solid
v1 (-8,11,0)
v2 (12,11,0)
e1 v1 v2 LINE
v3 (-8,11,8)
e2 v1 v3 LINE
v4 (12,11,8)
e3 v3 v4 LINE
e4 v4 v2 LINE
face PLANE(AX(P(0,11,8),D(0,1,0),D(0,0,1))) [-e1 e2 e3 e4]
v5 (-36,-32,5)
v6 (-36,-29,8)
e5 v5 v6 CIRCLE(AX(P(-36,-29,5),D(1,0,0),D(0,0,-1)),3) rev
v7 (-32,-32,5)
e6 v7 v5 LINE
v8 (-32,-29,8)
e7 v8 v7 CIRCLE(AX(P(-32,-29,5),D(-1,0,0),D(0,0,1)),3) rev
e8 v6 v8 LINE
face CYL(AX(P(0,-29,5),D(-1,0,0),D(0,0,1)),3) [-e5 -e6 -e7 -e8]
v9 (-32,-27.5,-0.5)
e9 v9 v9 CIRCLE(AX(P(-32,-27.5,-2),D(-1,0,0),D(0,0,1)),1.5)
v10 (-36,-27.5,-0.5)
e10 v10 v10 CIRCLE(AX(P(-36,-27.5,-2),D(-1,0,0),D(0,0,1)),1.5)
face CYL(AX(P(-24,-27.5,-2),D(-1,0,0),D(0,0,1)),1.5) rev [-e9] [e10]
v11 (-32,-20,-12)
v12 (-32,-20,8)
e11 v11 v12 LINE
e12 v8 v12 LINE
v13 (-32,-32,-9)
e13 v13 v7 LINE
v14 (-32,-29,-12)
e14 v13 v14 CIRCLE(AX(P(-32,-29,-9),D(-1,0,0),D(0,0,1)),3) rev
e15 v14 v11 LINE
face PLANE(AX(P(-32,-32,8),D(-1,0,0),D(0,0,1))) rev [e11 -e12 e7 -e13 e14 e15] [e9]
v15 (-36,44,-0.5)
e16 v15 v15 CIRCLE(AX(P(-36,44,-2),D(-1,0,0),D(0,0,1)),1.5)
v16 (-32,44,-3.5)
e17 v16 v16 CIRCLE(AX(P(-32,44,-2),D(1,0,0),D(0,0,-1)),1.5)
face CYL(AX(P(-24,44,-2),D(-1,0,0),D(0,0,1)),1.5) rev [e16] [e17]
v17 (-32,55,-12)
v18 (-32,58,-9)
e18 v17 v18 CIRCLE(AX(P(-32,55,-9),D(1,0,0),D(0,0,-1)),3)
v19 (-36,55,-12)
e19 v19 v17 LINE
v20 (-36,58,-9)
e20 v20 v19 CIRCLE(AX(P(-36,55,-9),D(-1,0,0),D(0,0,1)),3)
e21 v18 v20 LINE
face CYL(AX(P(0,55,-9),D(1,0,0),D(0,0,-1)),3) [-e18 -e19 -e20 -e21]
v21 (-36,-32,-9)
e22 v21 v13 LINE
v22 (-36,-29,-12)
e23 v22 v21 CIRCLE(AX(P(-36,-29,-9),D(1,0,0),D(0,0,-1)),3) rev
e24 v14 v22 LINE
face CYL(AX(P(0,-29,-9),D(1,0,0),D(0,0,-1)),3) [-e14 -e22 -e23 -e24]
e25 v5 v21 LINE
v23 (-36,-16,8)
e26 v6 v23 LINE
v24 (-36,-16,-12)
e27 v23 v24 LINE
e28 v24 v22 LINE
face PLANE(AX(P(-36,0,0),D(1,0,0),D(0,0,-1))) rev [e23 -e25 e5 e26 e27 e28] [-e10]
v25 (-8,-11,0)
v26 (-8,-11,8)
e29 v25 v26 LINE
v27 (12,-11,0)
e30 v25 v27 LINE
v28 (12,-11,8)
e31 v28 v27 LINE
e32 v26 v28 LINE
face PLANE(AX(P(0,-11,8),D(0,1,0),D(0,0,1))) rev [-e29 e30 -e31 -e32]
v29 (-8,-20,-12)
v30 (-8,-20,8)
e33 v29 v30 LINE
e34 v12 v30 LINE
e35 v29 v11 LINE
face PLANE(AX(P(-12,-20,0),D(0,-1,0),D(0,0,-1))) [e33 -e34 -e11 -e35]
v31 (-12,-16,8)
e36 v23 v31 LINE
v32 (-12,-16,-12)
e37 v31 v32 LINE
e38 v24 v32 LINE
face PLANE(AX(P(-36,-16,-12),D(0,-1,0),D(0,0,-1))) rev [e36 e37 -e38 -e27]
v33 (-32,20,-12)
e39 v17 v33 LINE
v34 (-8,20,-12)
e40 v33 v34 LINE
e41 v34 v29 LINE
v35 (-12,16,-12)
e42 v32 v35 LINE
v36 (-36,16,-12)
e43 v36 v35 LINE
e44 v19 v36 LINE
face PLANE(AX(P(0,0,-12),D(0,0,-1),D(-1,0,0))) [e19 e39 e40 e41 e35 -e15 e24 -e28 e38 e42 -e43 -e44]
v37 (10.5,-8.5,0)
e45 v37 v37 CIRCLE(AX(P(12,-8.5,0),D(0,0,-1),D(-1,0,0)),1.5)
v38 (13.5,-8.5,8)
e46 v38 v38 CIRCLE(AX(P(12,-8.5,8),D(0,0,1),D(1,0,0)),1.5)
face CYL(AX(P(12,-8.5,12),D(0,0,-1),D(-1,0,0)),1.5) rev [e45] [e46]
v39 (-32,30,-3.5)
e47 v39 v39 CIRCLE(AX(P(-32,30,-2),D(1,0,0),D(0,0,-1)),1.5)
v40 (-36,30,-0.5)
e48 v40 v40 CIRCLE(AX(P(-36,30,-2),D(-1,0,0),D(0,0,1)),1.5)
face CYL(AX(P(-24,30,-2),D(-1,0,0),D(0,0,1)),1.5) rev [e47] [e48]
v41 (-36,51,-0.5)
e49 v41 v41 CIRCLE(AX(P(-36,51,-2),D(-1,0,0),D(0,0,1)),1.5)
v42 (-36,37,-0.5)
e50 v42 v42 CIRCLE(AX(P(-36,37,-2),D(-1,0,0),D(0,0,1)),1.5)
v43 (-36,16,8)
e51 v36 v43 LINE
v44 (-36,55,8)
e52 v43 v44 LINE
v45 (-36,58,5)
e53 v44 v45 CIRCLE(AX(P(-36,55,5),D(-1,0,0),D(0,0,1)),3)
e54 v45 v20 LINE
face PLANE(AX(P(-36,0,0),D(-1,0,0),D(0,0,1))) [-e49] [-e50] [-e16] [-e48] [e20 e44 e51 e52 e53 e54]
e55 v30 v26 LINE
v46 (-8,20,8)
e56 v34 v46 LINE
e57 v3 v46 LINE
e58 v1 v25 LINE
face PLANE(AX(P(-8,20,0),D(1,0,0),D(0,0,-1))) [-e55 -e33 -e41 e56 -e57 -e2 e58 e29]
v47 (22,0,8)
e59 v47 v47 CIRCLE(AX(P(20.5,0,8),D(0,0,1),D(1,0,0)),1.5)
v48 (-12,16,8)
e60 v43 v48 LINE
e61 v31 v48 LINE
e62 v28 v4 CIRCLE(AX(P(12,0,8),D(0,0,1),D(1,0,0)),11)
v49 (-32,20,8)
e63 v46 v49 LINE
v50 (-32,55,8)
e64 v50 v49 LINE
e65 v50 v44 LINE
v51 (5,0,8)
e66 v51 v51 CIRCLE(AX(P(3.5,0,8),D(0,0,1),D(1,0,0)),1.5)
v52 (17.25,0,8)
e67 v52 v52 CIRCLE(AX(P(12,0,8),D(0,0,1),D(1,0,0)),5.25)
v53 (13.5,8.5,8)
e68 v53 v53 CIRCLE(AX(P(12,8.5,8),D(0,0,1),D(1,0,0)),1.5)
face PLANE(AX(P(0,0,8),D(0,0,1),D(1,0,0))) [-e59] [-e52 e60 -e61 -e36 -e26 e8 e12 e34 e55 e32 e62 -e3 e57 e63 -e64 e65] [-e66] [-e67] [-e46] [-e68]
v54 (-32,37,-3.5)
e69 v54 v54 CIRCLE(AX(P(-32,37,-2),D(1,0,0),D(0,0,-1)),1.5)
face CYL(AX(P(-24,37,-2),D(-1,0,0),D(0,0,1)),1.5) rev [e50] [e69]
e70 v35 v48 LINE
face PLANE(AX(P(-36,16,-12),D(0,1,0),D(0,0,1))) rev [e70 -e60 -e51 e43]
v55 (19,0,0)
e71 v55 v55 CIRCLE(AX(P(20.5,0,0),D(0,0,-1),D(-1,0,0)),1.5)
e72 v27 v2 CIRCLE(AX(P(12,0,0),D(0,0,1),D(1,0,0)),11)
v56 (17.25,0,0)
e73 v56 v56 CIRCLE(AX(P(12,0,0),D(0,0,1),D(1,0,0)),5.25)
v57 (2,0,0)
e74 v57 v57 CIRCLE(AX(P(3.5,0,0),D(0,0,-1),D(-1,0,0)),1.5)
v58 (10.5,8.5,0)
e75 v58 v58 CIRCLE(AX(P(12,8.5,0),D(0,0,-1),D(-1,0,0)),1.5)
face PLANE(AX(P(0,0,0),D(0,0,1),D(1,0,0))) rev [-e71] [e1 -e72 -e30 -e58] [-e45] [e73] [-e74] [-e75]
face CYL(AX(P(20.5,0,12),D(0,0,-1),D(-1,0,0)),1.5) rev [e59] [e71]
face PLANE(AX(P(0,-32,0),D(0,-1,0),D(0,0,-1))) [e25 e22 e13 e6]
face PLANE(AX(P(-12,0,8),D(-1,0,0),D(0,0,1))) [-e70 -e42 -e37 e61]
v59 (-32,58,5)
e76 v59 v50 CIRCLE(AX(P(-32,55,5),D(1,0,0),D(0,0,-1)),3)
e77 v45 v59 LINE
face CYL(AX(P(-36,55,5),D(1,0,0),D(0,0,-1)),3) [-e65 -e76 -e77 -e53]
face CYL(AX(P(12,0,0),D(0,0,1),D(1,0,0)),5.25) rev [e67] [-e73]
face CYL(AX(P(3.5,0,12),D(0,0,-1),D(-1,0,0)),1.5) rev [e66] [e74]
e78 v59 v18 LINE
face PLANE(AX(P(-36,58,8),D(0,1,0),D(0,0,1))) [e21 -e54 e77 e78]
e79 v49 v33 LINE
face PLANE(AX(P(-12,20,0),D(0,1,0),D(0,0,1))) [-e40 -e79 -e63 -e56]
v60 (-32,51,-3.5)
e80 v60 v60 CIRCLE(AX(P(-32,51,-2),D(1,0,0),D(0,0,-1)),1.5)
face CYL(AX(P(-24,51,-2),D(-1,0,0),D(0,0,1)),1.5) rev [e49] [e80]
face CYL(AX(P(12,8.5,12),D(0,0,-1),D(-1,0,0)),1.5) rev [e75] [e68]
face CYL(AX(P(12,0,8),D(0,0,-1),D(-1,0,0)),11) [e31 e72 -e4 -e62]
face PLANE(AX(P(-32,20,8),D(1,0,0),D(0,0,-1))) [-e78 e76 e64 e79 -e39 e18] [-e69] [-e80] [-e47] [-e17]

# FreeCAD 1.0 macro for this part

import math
import FreeCAD as App
import Part
import Sketcher


def edges_at(feature, points):
    """Names of the edges that pass closest to the given points."""
    edges = feature.Shape.Edges
    near = lambda p: min(range(len(edges)), key=lambda i: edges[i].distToShape(Part.Vertex(*p))[0])
    return sorted({f"Edge{near(p) + 1}" for p in points})


def add_polygon(sketch, points):
    """Adds a closed chain of lines whose ends are joined by coincident constraints."""
    first, n = sketch.GeometryCount, len(points)
    for a, b in zip(points, points[1:] + points[:1]):
        sketch.addGeometry(Part.LineSegment(App.Vector(*a, 0), App.Vector(*b, 0)), False)
    for i in range(n):
        sketch.addConstraint(Sketcher.Constraint("Coincident", first + i, 2, first + (i + 1) % n, 1))

doc = App.newDocument("Part")
params = doc.addObject("Spreadsheet::Sheet", "Params")
for row, (alias, value) in enumerate([
    ("sketch1_radius", "11 mm"),
    ("sketch1_width", "24 mm"),
    ("pad1_length", "8 mm"),
    ("sketch2_diameter", "10.5 mm"),
    ("pocket1_length", "8 mm"),
    ("sketch3_width", "4 mm"),
    ("sketch3_height", "9 mm"),
    ("pad2_length", "8 mm"),
    ("sketch4_width", "4 mm"),
    ("sketch4_height", "40 mm"),
    ("pad3_length", "12 mm"),
    ("sketch5_width", "4 mm"),
    ("sketch5_height", "20 mm"),
    ("pad4_length", "24 mm"),
    ("sketch6_width", "4 mm"),
    ("sketch6_height", "20 mm"),
    ("pad5_length", "24 mm"),
    ("sketch7_width", "4 mm"),
    ("sketch7_height", "38 mm"),
    ("pad6_length", "20 mm"),
    ("sketch8_width", "4 mm"),
    ("sketch8_height", "20 mm"),
    ("pad7_length", "12 mm"),
    ("sketch9_diameter", "3 mm"),
    ("pocket2_length", "12 mm"),
    ("sketch10_diameter", "3 mm"),
    ("pocket3_length", "12 mm"),
    ("fillet_radius", "3 mm"),
    ("sketch11_diameter", "3 mm"),
    ("pocket4_length", "12 mm"),
], start=1):
    params.set(f"A{row}", alias)
    params.set(f"B{row}", "=" + value)
    params.setAlias(f"B{row}", alias)

body = doc.addObject("PartDesign::Body", "Body")

# Sketch on XY plane
sketch1 = body.newObject("Sketcher::SketchObject", "Sketch")
sketch1.AttachmentSupport = (doc.getObject("XY_Plane"), [""])
sketch1.MapMode = "FlatFace"
sketch1.addGeometry([
    Part.ArcOfCircle(Part.Circle(App.Vector(12, 0, 0), App.Vector(0, 0, 1), 11), math.radians(-90), math.radians(0)),  # 0
    Part.ArcOfCircle(Part.Circle(App.Vector(12, 0, 0), App.Vector(0, 0, 1), 11), math.radians(0), math.radians(90)),  # 1
    Part.LineSegment(App.Vector(12, 11, 0), App.Vector(-12, 11, 0)),  # 2
    Part.LineSegment(App.Vector(-12, 11, 0), App.Vector(-12, -11, 0)),  # 3
    Part.LineSegment(App.Vector(-12, -11, 0), App.Vector(12, -11, 0)),  # 4
], False)
sketch1.addConstraint([
    Sketcher.Constraint("Tangent", 0, 2, 1, 1),
    Sketcher.Constraint("Tangent", 1, 2, 2, 1),
    Sketcher.Constraint("Coincident", 2, 2, 3, 1),
    Sketcher.Constraint("Coincident", 3, 2, 4, 1),
    Sketcher.Constraint("Tangent", 4, 2, 0, 1),
    Sketcher.Constraint("Horizontal", 2),
    Sketcher.Constraint("Vertical", 3),
    Sketcher.Constraint("Horizontal", 4),
    Sketcher.Constraint("Equal", 0, 1),
    Sketcher.Constraint("Symmetric", 1, 2, 3, 2, -1, 1),
    Sketcher.Constraint("PointOnObject", 0, 2, -1),
    Sketcher.Constraint("Radius", 0, 11.0),
    Sketcher.Constraint("DistanceX", 2, 2, 2, 1, 24.0),
])
sketch1.setExpression("Constraints[11]", "Params.sketch1_radius")
sketch1.setExpression("Constraints[12]", "Params.sketch1_width")
pad1 = body.newObject("PartDesign::Pad", "Pad")
pad1.Profile = sketch1
pad1.setExpression("Length", "Params.pad1_length")

# Sketch on XY plane
sketch2 = body.newObject("Sketcher::SketchObject", "Sketch001")
sketch2.AttachmentSupport = (doc.getObject("XY_Plane"), [""])
sketch2.MapMode = "FlatFace"
sketch2.AttachmentOffset = App.Placement(App.Vector(0, 0, 8), App.Rotation())
sketch2.addGeometry(Part.Circle(App.Vector(12, 0, 0), App.Vector(0, 0, 1), 5), False)
sketch2.addConstraint([
    Sketcher.Constraint("PointOnObject", 0, 3, -1),
    Sketcher.Constraint("Diameter", 0, 10.5),
    Sketcher.Constraint("DistanceX", -1, 1, 0, 3, 12.0),
])
sketch2.setExpression("Constraints[1]", "Params.sketch2_diameter")
pocket1 = body.newObject("PartDesign::Pocket", "Pocket")
pocket1.Profile = sketch2
pocket1.setExpression("Length", "Params.pocket1_length")

# Sketch on XY plane
sketch3 = body.newObject("Sketcher::SketchObject", "Sketch002")
sketch3.AttachmentSupport = (doc.getObject("XY_Plane"), [""])
sketch3.MapMode = "FlatFace"
sketch3.AttachmentOffset = App.Placement(App.Vector(0, 0, 8), App.Rotation())
add_polygon(sketch3, [(-12, 20), (-12, 11), (-8, 11), (-8, 20)])  # lines 0-3
add_polygon(sketch3, [(-12, -11), (-12, -20), (-8, -20), (-8, -11)])  # lines 4-7
sketch3.addConstraint([
    Sketcher.Constraint("Vertical", 0),
    Sketcher.Constraint("Horizontal", 1),
    Sketcher.Constraint("Vertical", 2),
    Sketcher.Constraint("Horizontal", 3),
    Sketcher.Constraint("Vertical", 4),
    Sketcher.Constraint("Horizontal", 5),
    Sketcher.Constraint("Vertical", 6),
    Sketcher.Constraint("Horizontal", 7),
    Sketcher.Constraint("Symmetric", 3, 2, 4, 2, -1),
    Sketcher.Constraint("Symmetric", 1, 2, 6, 2, -1),
    Sketcher.Constraint("DistanceX", 1, 1, 1, 2, 4.0),
    Sketcher.Constraint("DistanceY", 0, 2, 0, 1, 9.0),
    Sketcher.Constraint("DistanceX", 0, 2, -1, 1, 12.0),
    Sketcher.Constraint("DistanceY", -1, 1, 0, 2, 11.0),
])
sketch3.setExpression("Constraints[18]", "Params.sketch3_width")
sketch3.setExpression("Constraints[19]", "Params.sketch3_height")
pad2 = body.newObject("PartDesign::Pad", "Pad001")
pad2.Profile = sketch3
pad2.setExpression("Length", "Params.pad2_length")
pad2.Reversed = True

# Sketch on XY plane
sketch4 = body.newObject("Sketcher::SketchObject", "Sketch003")
sketch4.AttachmentSupport = (doc.getObject("XY_Plane"), [""])
sketch4.MapMode = "FlatFace"
add_polygon(sketch4, [(-8, 20), (-8, -20), (-12, -20), (-12, 20)])  # lines 0-3
sketch4.addConstraint([
    Sketcher.Constraint("Vertical", 0),
    Sketcher.Constraint("Horizontal", 1),
    Sketcher.Constraint("Vertical", 2),
    Sketcher.Constraint("Horizontal", 3),
    Sketcher.Constraint("DistanceX", 1, 2, 1, 1, 4.0),
    Sketcher.Constraint("DistanceY", 0, 2, 0, 1, 40.0),
    Sketcher.Constraint("DistanceX", 0, 2, -1, 1, 8.0),
    Sketcher.Constraint("DistanceY", 0, 2, -1, 1, 20.0),
])
sketch4.setExpression("Constraints[8]", "Params.sketch4_width")
sketch4.setExpression("Constraints[9]", "Params.sketch4_height")
pad3 = body.newObject("PartDesign::Pad", "Pad002")
pad3.Profile = sketch4
pad3.setExpression("Length", "Params.pad3_length")
pad3.Reversed = True

# Sketch on YZ plane
sketch5 = body.newObject("Sketcher::SketchObject", "Sketch004")
sketch5.AttachmentSupport = (doc.getObject("YZ_Plane"), [""])
sketch5.MapMode = "FlatFace"
sketch5.AttachmentOffset = App.Placement(App.Vector(0, 0, -12), App.Rotation())
add_polygon(sketch5, [(20, -12), (16, -12), (16, 8), (20, 8)])  # lines 0-3
sketch5.addConstraint([
    Sketcher.Constraint("Horizontal", 0),
    Sketcher.Constraint("Vertical", 1),
    Sketcher.Constraint("Horizontal", 2),
    Sketcher.Constraint("Vertical", 3),
    Sketcher.Constraint("DistanceX", 0, 2, 0, 1, 4.0),
    Sketcher.Constraint("DistanceY", 1, 1, 1, 2, 20.0),
    Sketcher.Constraint("DistanceX", -1, 1, 0, 2, 16.0),
    Sketcher.Constraint("DistanceY", 0, 2, -1, 1, 12.0),
])
sketch5.setExpression("Constraints[8]", "Params.sketch5_width")
sketch5.setExpression("Constraints[9]", "Params.sketch5_height")
pad4 = body.newObject("PartDesign::Pad", "Pad003")
pad4.Profile = sketch5
pad4.setExpression("Length", "Params.pad4_length")
pad4.Reversed = True

# Sketch on YZ plane
sketch6 = body.newObject("Sketcher::SketchObject", "Sketch005")
sketch6.AttachmentSupport = (doc.getObject("YZ_Plane"), [""])
sketch6.MapMode = "FlatFace"
sketch6.AttachmentOffset = App.Placement(App.Vector(0, 0, -12), App.Rotation())
add_polygon(sketch6, [(-16, -12), (-20, -12), (-20, 8), (-16, 8)])  # lines 0-3
sketch6.addConstraint([
    Sketcher.Constraint("Horizontal", 0),
    Sketcher.Constraint("Vertical", 1),
    Sketcher.Constraint("Horizontal", 2),
    Sketcher.Constraint("Vertical", 3),
    Sketcher.Constraint("DistanceX", 0, 2, 0, 1, 4.0),
    Sketcher.Constraint("DistanceY", 1, 1, 1, 2, 20.0),
    Sketcher.Constraint("DistanceX", 0, 2, -1, 1, 20.0),
    Sketcher.Constraint("DistanceY", 0, 2, -1, 1, 12.0),
])
sketch6.setExpression("Constraints[8]", "Params.sketch6_width")
sketch6.setExpression("Constraints[9]", "Params.sketch6_height")
pad5 = body.newObject("PartDesign::Pad", "Pad004")
pad5.Profile = sketch6
pad5.setExpression("Length", "Params.pad5_length")
pad5.Reversed = True

# Sketch on XY plane
sketch7 = body.newObject("Sketcher::SketchObject", "Sketch006")
sketch7.AttachmentSupport = (doc.getObject("XY_Plane"), [""])
sketch7.MapMode = "FlatFace"
sketch7.AttachmentOffset = App.Placement(App.Vector(0, 0, -12), App.Rotation())
add_polygon(sketch7, [(-32, 58), (-32, 20), (-36, 20), (-36, 58)])  # lines 0-3
sketch7.addConstraint([
    Sketcher.Constraint("Vertical", 0),
    Sketcher.Constraint("Horizontal", 1),
    Sketcher.Constraint("Vertical", 2),
    Sketcher.Constraint("Horizontal", 3),
    Sketcher.Constraint("DistanceX", 1, 2, 1, 1, 4.0),
    Sketcher.Constraint("DistanceY", 0, 2, 0, 1, 38.0),
    Sketcher.Constraint("DistanceX", 0, 2, -1, 1, 32.0),
    Sketcher.Constraint("DistanceY", -1, 1, 0, 2, 20.0),
])
sketch7.setExpression("Constraints[8]", "Params.sketch7_width")
sketch7.setExpression("Constraints[9]", "Params.sketch7_height")
pad6 = body.newObject("PartDesign::Pad", "Pad005")
pad6.Profile = sketch7
pad6.setExpression("Length", "Params.pad6_length")

# Sketch on XZ plane
sketch8 = body.newObject("Sketcher::SketchObject", "Sketch007")
sketch8.AttachmentSupport = (doc.getObject("XZ_Plane"), [""])
sketch8.MapMode = "FlatFace"
sketch8.AttachmentOffset = App.Placement(App.Vector(0, 0, 20), App.Rotation())
add_polygon(sketch8, [(-36, 8), (-36, -12), (-32, -12), (-32, 8)])  # lines 0-3
sketch8.addConstraint([
    Sketcher.Constraint("Vertical", 0),
    Sketcher.Constraint("Horizontal", 1),
    Sketcher.Constraint("Vertical", 2),
    Sketcher.Constraint("Horizontal", 3),
    Sketcher.Constraint("DistanceX", 1, 1, 1, 2, 4.0),
    Sketcher.Constraint("DistanceY", 0, 2, 0, 1, 20.0),
    Sketcher.Constraint("DistanceX", 0, 2, -1, 1, 36.0),
    Sketcher.Constraint("DistanceY", 0, 2, -1, 1, 12.0),
])
sketch8.setExpression("Constraints[8]", "Params.sketch8_width")
sketch8.setExpression("Constraints[9]", "Params.sketch8_height")
pad7 = body.newObject("PartDesign::Pad", "Pad006")
pad7.Profile = sketch8
pad7.setExpression("Length", "Params.pad7_length")

# Sketch on YZ plane
sketch9 = body.newObject("Sketcher::SketchObject", "Sketch008")
sketch9.AttachmentSupport = (doc.getObject("YZ_Plane"), [""])
sketch9.MapMode = "FlatFace"
sketch9.AttachmentOffset = App.Placement(App.Vector(0, 0, -36), App.Rotation())
sketch9.addGeometry(Part.Circle(App.Vector(-27.5, -2, 0), App.Vector(0, 0, 1), 1.5), False)
sketch9.addConstraint([
    Sketcher.Constraint("Diameter", 0, 3.0),
    Sketcher.Constraint("DistanceY", 0, 3, -1, 1, 2.0),
    Sketcher.Constraint("DistanceX", 0, 3, -1, 1, 27.5),
])
sketch9.setExpression("Constraints[0]", "Params.sketch9_diameter")
pocket2 = body.newObject("PartDesign::Pocket", "Pocket001")
pocket2.Profile = sketch9
pocket2.setExpression("Length", "Params.pocket2_length")
pocket2.Reversed = True

# Sketch on YZ plane
sketch10 = body.newObject("Sketcher::SketchObject", "Sketch009")
sketch10.AttachmentSupport = (doc.getObject("YZ_Plane"), [""])
sketch10.MapMode = "FlatFace"
sketch10.AttachmentOffset = App.Placement(App.Vector(0, 0, -36), App.Rotation())
sketch10.addGeometry([
    Part.Circle(App.Vector(51, -2, 0), App.Vector(0, 0, 1), 1.5),
    Part.Circle(App.Vector(44, -2, 0), App.Vector(0, 0, 1), 1.5),
    Part.Circle(App.Vector(37, -2, 0), App.Vector(0, 0, 1), 1.5),
    Part.Circle(App.Vector(30, -2, 0), App.Vector(0, 0, 1), 1.5),
], False)
sketch10.addConstraint([
    Sketcher.Constraint("Equal", 0, 1),
    Sketcher.Constraint("Equal", 1, 2),
    Sketcher.Constraint("Equal", 2, 3),
    Sketcher.Constraint("Horizontal", 0, 3, 1, 3),
    Sketcher.Constraint("Horizontal", 1, 3, 2, 3),
    Sketcher.Constraint("Horizontal", 2, 3, 3, 3),
    Sketcher.Constraint("Diameter", 0, 3.0),
    Sketcher.Constraint("DistanceX", -1, 1, 0, 3, 51.0),
    Sketcher.Constraint("DistanceY", 0, 3, -1, 1, 2.0),
    Sketcher.Constraint("DistanceX", -1, 1, 1, 3, 44.0),
    Sketcher.Constraint("DistanceX", -1, 1, 2, 3, 37.0),
    Sketcher.Constraint("DistanceX", -1, 1, 3, 3, 30.0),
])
sketch10.setExpression("Constraints[6]", "Params.sketch10_diameter")
pocket3 = body.newObject("PartDesign::Pocket", "Pocket002")
pocket3.Profile = sketch10
pocket3.setExpression("Length", "Params.pocket3_length")
pocket3.Reversed = True
doc.recompute()

fillet = body.newObject("PartDesign::Fillet", "Fillet")
fillet.Base = (pocket3, edges_at(pocket3, [
    (-34, -32, -12),
    (-34, -32, 8),
    (-34, 58, 8),
    (-34, 58, -12),
]))
fillet.setExpression("Radius", "Params.fillet_radius")

# Sketch on XY plane
sketch11 = body.newObject("Sketcher::SketchObject", "Sketch010")
sketch11.AttachmentSupport = (doc.getObject("XY_Plane"), [""])
sketch11.MapMode = "FlatFace"
sketch11.addGeometry([
    Part.Circle(App.Vector(12, 8.5, 0), App.Vector(0, 0, 1), 1.5),
    Part.Circle(App.Vector(20.5, 0, 0), App.Vector(0, 0, 1), 1.5),
    Part.Circle(App.Vector(12, -8.5, 0), App.Vector(0, 0, 1), 1.5),
    Part.Circle(App.Vector(3.5, 0, 0), App.Vector(0, 0, 1), 1.5),
], False)
sketch11.addConstraint([
    Sketcher.Constraint("Equal", 0, 1),
    Sketcher.Constraint("Equal", 1, 2),
    Sketcher.Constraint("Equal", 2, 3),
    Sketcher.Constraint("Symmetric", 0, 3, 2, 3, -1),
    Sketcher.Constraint("PointOnObject", 1, 3, -1),
    Sketcher.Constraint("PointOnObject", 3, 3, -1),
    Sketcher.Constraint("Diameter", 0, 3.0),
    Sketcher.Constraint("DistanceX", -1, 1, 0, 3, 12.0),
    Sketcher.Constraint("DistanceY", 2, 3, 0, 3, 17.0),
    Sketcher.Constraint("DistanceX", 3, 3, 1, 3, 17.0),
    Sketcher.Constraint("DistanceX", -1, 1, 1, 3, 20.5),
])
sketch11.setExpression("Constraints[6]", "Params.sketch11_diameter")
pocket4 = body.newObject("PartDesign::Pocket", "Pocket003")
pocket4.Profile = sketch11
pocket4.setExpression("Length", "Params.pocket4_length")
pocket4.Reversed = True

doc.recompute()
